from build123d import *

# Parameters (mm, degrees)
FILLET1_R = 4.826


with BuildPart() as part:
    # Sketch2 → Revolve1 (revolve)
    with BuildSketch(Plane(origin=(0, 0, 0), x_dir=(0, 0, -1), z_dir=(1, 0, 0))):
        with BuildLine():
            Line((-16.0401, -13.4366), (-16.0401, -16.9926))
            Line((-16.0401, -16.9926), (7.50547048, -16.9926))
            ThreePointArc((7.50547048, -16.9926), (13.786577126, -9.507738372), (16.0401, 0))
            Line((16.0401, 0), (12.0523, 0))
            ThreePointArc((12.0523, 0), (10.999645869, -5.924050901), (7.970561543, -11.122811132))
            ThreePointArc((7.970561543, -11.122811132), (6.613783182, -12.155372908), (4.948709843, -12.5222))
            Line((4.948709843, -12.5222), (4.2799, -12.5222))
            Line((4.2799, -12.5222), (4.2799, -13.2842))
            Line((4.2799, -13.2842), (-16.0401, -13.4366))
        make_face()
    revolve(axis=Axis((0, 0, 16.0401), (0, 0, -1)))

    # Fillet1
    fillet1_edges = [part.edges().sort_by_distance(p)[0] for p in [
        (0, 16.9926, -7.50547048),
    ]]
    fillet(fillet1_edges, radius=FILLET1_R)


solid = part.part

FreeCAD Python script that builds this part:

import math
import FreeCAD as App
import Part
import Sketcher

V = App.Vector
Q = App.Units.Quantity


def edges_at(feature, points):
    """Names of the edges that pass closest to the given points."""
    edges = feature.Shape.Edges
    near = lambda p: min(range(len(edges)), key=lambda i: edges[i].distToShape(Part.Vertex(*p))[0])
    return sorted({f"Edge{near(p) + 1}" for p in points})

doc = App.newDocument("Part")
body = doc.addObject("PartDesign::Body", "Body")

sketch1 = doc.addObject("Sketcher::SketchObject", "Sketch")
body.addObject(sketch1)
sketch1.AttachmentSupport = (doc.YZ_Plane, [""])
sketch1.MapMode = "FlatFace"
sketch1.addGeometry([
    Part.LineSegment(V(-13.4, 16, 0), V(-17, 16, 0)),
    Part.LineSegment(V(-17, 16, 0), V(-17, -7.5, 0)),
    Part.ArcOfCircle(Part.Circle(V(0, 5.1, 0), V(0, 0, 1), 21.2), math.radians(-143), math.radians(-90)),
    Part.LineSegment(V(0, -16, 0), V(0, -12.1, 0)),
    Part.ArcOfCircle(Part.Circle(V(0, 5.1, 0), V(0, 0, 1), 17.2), math.radians(-130), math.radians(-90)),
    Part.ArcOfCircle(Part.Circle(V(-8.6, -4.9, 0), V(0, 0, 1), 4), math.radians(180), math.radians(230)),
    Part.LineSegment(V(-12.5, -4.9, 0), V(-12.5, -4.3, 0)),
    Part.LineSegment(V(-12.5, -4.3, 0), V(-13.3, -4.3, 0)),
    Part.LineSegment(V(-13.3, -4.3, 0), V(-13.4, 16, 0)),
], False)
sketch1.addConstraint([
    Sketcher.Constraint("Coincident", 0, 2, 1, 1),
    Sketcher.Constraint("Coincident", 1, 2, 2, 1),
    Sketcher.Constraint("Coincident", 2, 2, 3, 1),
    Sketcher.Constraint("Coincident", 3, 2, 4, 2),
    Sketcher.Constraint("Tangent", 4, 1, 5, 2),
    Sketcher.Constraint("Tangent", 5, 1, 6, 1),
    Sketcher.Constraint("Coincident", 6, 2, 7, 1),
    Sketcher.Constraint("Coincident", 7, 2, 8, 1),
    Sketcher.Constraint("Coincident", 8, 2, 0, 1),
    Sketcher.Constraint("Horizontal", 0),
    Sketcher.Constraint("Vertical", 1),
    Sketcher.Constraint("Vertical", 3),
    Sketcher.Constraint("Vertical", 6),
    Sketcher.Constraint("Horizontal", 7),
    Sketcher.Constraint("Coincident", 4, 3, 2, 3),
    Sketcher.Constraint("PointOnObject", 2, 3, -2),
    Sketcher.Constraint("PointOnObject", 2, 2, -2),
    Sketcher.Constraint("Radius", 2, Q("0.834 in")),
    Sketcher.Constraint("Radius", 4, Q("0.677 in")),
    Sketcher.Constraint("Radius", 5, Q("0.156 in")),
    Sketcher.Constraint("DistanceX", 0, 2, 0, 1, Q("0.14 in")),
    Sketcher.Constraint("DistanceX", 7, 2, 7, 1, Q("0.03 in")),
    Sketcher.Constraint("DistanceY", 7, 2, 8, 2, Q("0.8 in")),
    Sketcher.Constraint("DistanceX", 5, 3, -1, 1, Q("0.337 in")),
    Sketcher.Constraint("DistanceX", 0, 2, -1, 1, Q("0.669 in")),
    Sketcher.Constraint("DistanceY", 4, 3, 0, 2, Q("0.429 in")),
    Sketcher.Constraint("DistanceY", -1, 1, 2, 3, Q("0.2025 in")),
])
revolution = doc.addObject("PartDesign::Revolution", "Revolution")
body.addObject(revolution)
revolution.Profile = sketch1
revolution.ReferenceAxis = (sketch1, ["V_Axis"])
revolution.Angle = 360
doc.recompute()

fillet = doc.addObject("PartDesign::Fillet", "Fillet")
body.addObject(fillet)
fillet.Base = (revolution, edges_at(revolution, [(0, 16.993, -7.505)]))
fillet.Radius = Q("0.19 in")

doc.recompute()
